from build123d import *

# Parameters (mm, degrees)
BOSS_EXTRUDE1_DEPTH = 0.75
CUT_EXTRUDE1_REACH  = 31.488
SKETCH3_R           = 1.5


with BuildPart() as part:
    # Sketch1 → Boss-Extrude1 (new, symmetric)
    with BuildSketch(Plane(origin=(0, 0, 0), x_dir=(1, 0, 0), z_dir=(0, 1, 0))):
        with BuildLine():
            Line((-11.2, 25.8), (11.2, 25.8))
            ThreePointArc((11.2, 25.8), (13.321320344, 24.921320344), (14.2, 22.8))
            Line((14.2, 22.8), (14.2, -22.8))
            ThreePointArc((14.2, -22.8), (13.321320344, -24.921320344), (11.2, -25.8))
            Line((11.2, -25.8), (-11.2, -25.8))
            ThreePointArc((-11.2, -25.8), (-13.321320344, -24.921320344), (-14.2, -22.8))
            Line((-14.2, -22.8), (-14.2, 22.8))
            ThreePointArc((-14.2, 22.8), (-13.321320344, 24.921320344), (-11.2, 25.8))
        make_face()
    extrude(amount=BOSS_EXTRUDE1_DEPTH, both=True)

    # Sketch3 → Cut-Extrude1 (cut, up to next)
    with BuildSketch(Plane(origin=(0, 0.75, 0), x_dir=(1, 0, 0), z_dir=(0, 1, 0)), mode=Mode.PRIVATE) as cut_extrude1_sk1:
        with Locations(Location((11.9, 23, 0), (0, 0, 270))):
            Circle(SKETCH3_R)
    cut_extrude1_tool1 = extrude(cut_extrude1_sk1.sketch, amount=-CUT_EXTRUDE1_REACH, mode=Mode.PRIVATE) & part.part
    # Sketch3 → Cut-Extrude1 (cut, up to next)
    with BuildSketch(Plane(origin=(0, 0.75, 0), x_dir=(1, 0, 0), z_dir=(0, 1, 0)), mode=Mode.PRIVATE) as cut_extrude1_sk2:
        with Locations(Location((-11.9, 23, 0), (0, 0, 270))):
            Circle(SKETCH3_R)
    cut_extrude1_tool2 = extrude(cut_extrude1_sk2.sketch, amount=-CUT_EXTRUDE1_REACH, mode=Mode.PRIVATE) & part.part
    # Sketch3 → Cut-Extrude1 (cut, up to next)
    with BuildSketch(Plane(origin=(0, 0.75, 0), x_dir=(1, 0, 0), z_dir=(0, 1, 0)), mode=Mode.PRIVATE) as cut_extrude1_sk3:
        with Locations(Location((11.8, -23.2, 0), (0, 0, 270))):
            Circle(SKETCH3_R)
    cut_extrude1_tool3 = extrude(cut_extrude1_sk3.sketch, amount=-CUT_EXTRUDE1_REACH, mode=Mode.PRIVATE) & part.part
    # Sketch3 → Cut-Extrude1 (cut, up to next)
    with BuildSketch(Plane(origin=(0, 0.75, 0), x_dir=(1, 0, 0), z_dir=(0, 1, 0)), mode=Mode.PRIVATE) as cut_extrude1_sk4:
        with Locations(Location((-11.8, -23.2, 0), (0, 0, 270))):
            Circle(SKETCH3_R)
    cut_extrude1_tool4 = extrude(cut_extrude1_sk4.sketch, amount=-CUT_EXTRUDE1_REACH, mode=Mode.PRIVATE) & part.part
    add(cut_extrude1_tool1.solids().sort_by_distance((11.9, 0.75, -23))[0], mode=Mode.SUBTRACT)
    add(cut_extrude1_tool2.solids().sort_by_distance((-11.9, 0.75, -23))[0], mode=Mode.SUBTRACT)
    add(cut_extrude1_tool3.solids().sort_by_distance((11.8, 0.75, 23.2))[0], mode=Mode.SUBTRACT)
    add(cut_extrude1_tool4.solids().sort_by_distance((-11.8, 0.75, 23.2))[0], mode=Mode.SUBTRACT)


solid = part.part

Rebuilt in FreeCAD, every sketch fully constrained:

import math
import FreeCAD as App
import Part
import Sketcher
from FreeCAD import Vector
Q = App.Units.Quantity

doc = App.newDocument("Part")
body = doc.addObject("PartDesign::Body", "Body")

# Sketch on XZ plane
sketch1 = body.newObject("Sketcher::SketchObject", "Sketch")
sketch1.AttachmentSupport = (doc.getObject("XZ_Plane"), [""])
sketch1.MapMode = "FlatFace"
sketch1.addGeometry([
    Part.LineSegment(Vector(11.2, -25.8, 0), Vector(-11.2, -25.8, 0)),  # 0
    Part.ArcOfCircle(Part.Circle(Vector(-11.2, -22.8, 0), Vector(0, 0, 1), 3), math.radians(180), math.radians(270)),  # 1
    Part.LineSegment(Vector(-14.2, -22.8, 0), Vector(-14.2, 22.8, 0)),  # 2
    Part.ArcOfCircle(Part.Circle(Vector(-11.2, 22.8, 0), Vector(0, 0, 1), 3), math.radians(90), math.radians(180)),  # 3
    Part.LineSegment(Vector(-11.2, 25.8, 0), Vector(11.2, 25.8, 0)),  # 4
    Part.ArcOfCircle(Part.Circle(Vector(11.2, 22.8, 0), Vector(0, 0, 1), 3), math.radians(0), math.radians(90)),  # 5
    Part.LineSegment(Vector(14.2, 22.8, 0), Vector(14.2, -22.8, 0)),  # 6
    Part.ArcOfCircle(Part.Circle(Vector(11.2, -22.8, 0), Vector(0, 0, 1), 3), math.radians(-90), math.radians(0)),  # 7
], False)
sketch1.addConstraint([
    Sketcher.Constraint("Tangent", 0, 2, 1, 2),
    Sketcher.Constraint("Tangent", 1, 1, 2, 1),
    Sketcher.Constraint("Tangent", 2, 2, 3, 2),
    Sketcher.Constraint("Tangent", 3, 1, 4, 1),
    Sketcher.Constraint("Tangent", 4, 2, 5, 2),
    Sketcher.Constraint("Tangent", 5, 1, 6, 1),
    Sketcher.Constraint("Tangent", 6, 2, 7, 2),
    Sketcher.Constraint("Tangent", 7, 1, 0, 1),
    Sketcher.Constraint("Horizontal", 0),
    Sketcher.Constraint("Vertical", 2),
    Sketcher.Constraint("Horizontal", 4),
    Sketcher.Constraint("Vertical", 6),
    Sketcher.Constraint("Equal", 1, 3),
    Sketcher.Constraint("Equal", 3, 5),
    Sketcher.Constraint("Equal", 5, 7),
    Sketcher.Constraint("Symmetric", 1, 3, 5, 3, -1, 1),
    Sketcher.Constraint("Radius", 1, Q("3 mm")),
    Sketcher.Constraint("DistanceX", 0, 2, 0, 1, Q("22.4 mm")),
    Sketcher.Constraint("DistanceY", 2, 1, 2, 2, Q("45.6 mm")),
])
pad1 = body.newObject("PartDesign::Pad", "Pad")
pad1.Profile = sketch1
pad1.Length = 1.5
pad1.Midplane = True

# Sketch on XZ plane
sketch2 = body.newObject("Sketcher::SketchObject", "Sketch001")
sketch2.AttachmentSupport = (doc.getObject("XZ_Plane"), [""])
sketch2.MapMode = "FlatFace"
sketch2.AttachmentOffset = App.Placement(Vector(0, 0, -0.75), App.Rotation())
sketch2.addGeometry(Part.Circle(Vector(11.9, -23, 0), Vector(0, 0, 1), 1.5), False)
sketch2.addConstraint([
    Sketcher.Constraint("Diameter", 0, Q("3 mm")),
    Sketcher.Constraint("DistanceY", 0, 3, -1, 1, Q("23 mm")),
    Sketcher.Constraint("DistanceX", -1, 1, 0, 3, Q("11.9 mm")),
])
pocket1 = body.newObject("PartDesign::Pocket", "Pocket")
pocket1.Profile = sketch2
pocket1.Type = "UpToFirst"
pocket1.Reversed = True

# Sketch on XZ plane
sketch3 = body.newObject("Sketcher::SketchObject", "Sketch002")
sketch3.AttachmentSupport = (doc.getObject("XZ_Plane"), [""])
sketch3.MapMode = "FlatFace"
sketch3.AttachmentOffset = App.Placement(Vector(0, 0, -0.75), App.Rotation())
sketch3.addGeometry(Part.Circle(Vector(-11.9, -23, 0), Vector(0, 0, 1), 1.5), False)
sketch3.addConstraint([
    Sketcher.Constraint("Diameter", 0, Q("3 mm")),
    Sketcher.Constraint("DistanceY", 0, 3, -1, 1, Q("23 mm")),
    Sketcher.Constraint("DistanceX", 0, 3, -1, 1, Q("11.9 mm")),
])
pocket2 = body.newObject("PartDesign::Pocket", "Pocket001")
pocket2.Profile = sketch3
pocket2.Type = "UpToFirst"
pocket2.Reversed = True

# Sketch on XZ plane
sketch4 = body.newObject("Sketcher::SketchObject", "Sketch003")
sketch4.AttachmentSupport = (doc.getObject("XZ_Plane"), [""])
sketch4.MapMode = "FlatFace"
sketch4.AttachmentOffset = App.Placement(Vector(0, 0, -0.75), App.Rotation())
sketch4.addGeometry(Part.Circle(Vector(11.8, 23.2, 0), Vector(0, 0, 1), 1.5), False)
sketch4.addConstraint([
    Sketcher.Constraint("Diameter", 0, Q("3 mm")),
    Sketcher.Constraint("DistanceX", -1, 1, 0, 3, Q("11.8 mm")),
    Sketcher.Constraint("DistanceY", -1, 1, 0, 3, Q("23.2 mm")),
])
pocket3 = body.newObject("PartDesign::Pocket", "Pocket002")
pocket3.Profile = sketch4
pocket3.Type = "UpToFirst"
pocket3.Reversed = True

# Sketch on XZ plane
sketch5 = body.newObject("Sketcher::SketchObject", "Sketch004")
sketch5.AttachmentSupport = (doc.getObject("XZ_Plane"), [""])
sketch5.MapMode = "FlatFace"
sketch5.AttachmentOffset = App.Placement(Vector(0, 0, -0.75), App.Rotation())
sketch5.addGeometry(Part.Circle(Vector(-11.8, 23.2, 0), Vector(0, 0, 1), 1.5), False)
sketch5.addConstraint([
    Sketcher.Constraint("Diameter", 0, Q("3 mm")),
    Sketcher.Constraint("DistanceX", 0, 3, -1, 1, Q("11.8 mm")),
    Sketcher.Constraint("DistanceY", -1, 1, 0, 3, Q("23.2 mm")),
])
pocket4 = body.newObject("PartDesign::Pocket", "Pocket003")
pocket4.Profile = sketch5
pocket4.Type = "UpToFirst"
pocket4.Reversed = True

doc.recompute()
